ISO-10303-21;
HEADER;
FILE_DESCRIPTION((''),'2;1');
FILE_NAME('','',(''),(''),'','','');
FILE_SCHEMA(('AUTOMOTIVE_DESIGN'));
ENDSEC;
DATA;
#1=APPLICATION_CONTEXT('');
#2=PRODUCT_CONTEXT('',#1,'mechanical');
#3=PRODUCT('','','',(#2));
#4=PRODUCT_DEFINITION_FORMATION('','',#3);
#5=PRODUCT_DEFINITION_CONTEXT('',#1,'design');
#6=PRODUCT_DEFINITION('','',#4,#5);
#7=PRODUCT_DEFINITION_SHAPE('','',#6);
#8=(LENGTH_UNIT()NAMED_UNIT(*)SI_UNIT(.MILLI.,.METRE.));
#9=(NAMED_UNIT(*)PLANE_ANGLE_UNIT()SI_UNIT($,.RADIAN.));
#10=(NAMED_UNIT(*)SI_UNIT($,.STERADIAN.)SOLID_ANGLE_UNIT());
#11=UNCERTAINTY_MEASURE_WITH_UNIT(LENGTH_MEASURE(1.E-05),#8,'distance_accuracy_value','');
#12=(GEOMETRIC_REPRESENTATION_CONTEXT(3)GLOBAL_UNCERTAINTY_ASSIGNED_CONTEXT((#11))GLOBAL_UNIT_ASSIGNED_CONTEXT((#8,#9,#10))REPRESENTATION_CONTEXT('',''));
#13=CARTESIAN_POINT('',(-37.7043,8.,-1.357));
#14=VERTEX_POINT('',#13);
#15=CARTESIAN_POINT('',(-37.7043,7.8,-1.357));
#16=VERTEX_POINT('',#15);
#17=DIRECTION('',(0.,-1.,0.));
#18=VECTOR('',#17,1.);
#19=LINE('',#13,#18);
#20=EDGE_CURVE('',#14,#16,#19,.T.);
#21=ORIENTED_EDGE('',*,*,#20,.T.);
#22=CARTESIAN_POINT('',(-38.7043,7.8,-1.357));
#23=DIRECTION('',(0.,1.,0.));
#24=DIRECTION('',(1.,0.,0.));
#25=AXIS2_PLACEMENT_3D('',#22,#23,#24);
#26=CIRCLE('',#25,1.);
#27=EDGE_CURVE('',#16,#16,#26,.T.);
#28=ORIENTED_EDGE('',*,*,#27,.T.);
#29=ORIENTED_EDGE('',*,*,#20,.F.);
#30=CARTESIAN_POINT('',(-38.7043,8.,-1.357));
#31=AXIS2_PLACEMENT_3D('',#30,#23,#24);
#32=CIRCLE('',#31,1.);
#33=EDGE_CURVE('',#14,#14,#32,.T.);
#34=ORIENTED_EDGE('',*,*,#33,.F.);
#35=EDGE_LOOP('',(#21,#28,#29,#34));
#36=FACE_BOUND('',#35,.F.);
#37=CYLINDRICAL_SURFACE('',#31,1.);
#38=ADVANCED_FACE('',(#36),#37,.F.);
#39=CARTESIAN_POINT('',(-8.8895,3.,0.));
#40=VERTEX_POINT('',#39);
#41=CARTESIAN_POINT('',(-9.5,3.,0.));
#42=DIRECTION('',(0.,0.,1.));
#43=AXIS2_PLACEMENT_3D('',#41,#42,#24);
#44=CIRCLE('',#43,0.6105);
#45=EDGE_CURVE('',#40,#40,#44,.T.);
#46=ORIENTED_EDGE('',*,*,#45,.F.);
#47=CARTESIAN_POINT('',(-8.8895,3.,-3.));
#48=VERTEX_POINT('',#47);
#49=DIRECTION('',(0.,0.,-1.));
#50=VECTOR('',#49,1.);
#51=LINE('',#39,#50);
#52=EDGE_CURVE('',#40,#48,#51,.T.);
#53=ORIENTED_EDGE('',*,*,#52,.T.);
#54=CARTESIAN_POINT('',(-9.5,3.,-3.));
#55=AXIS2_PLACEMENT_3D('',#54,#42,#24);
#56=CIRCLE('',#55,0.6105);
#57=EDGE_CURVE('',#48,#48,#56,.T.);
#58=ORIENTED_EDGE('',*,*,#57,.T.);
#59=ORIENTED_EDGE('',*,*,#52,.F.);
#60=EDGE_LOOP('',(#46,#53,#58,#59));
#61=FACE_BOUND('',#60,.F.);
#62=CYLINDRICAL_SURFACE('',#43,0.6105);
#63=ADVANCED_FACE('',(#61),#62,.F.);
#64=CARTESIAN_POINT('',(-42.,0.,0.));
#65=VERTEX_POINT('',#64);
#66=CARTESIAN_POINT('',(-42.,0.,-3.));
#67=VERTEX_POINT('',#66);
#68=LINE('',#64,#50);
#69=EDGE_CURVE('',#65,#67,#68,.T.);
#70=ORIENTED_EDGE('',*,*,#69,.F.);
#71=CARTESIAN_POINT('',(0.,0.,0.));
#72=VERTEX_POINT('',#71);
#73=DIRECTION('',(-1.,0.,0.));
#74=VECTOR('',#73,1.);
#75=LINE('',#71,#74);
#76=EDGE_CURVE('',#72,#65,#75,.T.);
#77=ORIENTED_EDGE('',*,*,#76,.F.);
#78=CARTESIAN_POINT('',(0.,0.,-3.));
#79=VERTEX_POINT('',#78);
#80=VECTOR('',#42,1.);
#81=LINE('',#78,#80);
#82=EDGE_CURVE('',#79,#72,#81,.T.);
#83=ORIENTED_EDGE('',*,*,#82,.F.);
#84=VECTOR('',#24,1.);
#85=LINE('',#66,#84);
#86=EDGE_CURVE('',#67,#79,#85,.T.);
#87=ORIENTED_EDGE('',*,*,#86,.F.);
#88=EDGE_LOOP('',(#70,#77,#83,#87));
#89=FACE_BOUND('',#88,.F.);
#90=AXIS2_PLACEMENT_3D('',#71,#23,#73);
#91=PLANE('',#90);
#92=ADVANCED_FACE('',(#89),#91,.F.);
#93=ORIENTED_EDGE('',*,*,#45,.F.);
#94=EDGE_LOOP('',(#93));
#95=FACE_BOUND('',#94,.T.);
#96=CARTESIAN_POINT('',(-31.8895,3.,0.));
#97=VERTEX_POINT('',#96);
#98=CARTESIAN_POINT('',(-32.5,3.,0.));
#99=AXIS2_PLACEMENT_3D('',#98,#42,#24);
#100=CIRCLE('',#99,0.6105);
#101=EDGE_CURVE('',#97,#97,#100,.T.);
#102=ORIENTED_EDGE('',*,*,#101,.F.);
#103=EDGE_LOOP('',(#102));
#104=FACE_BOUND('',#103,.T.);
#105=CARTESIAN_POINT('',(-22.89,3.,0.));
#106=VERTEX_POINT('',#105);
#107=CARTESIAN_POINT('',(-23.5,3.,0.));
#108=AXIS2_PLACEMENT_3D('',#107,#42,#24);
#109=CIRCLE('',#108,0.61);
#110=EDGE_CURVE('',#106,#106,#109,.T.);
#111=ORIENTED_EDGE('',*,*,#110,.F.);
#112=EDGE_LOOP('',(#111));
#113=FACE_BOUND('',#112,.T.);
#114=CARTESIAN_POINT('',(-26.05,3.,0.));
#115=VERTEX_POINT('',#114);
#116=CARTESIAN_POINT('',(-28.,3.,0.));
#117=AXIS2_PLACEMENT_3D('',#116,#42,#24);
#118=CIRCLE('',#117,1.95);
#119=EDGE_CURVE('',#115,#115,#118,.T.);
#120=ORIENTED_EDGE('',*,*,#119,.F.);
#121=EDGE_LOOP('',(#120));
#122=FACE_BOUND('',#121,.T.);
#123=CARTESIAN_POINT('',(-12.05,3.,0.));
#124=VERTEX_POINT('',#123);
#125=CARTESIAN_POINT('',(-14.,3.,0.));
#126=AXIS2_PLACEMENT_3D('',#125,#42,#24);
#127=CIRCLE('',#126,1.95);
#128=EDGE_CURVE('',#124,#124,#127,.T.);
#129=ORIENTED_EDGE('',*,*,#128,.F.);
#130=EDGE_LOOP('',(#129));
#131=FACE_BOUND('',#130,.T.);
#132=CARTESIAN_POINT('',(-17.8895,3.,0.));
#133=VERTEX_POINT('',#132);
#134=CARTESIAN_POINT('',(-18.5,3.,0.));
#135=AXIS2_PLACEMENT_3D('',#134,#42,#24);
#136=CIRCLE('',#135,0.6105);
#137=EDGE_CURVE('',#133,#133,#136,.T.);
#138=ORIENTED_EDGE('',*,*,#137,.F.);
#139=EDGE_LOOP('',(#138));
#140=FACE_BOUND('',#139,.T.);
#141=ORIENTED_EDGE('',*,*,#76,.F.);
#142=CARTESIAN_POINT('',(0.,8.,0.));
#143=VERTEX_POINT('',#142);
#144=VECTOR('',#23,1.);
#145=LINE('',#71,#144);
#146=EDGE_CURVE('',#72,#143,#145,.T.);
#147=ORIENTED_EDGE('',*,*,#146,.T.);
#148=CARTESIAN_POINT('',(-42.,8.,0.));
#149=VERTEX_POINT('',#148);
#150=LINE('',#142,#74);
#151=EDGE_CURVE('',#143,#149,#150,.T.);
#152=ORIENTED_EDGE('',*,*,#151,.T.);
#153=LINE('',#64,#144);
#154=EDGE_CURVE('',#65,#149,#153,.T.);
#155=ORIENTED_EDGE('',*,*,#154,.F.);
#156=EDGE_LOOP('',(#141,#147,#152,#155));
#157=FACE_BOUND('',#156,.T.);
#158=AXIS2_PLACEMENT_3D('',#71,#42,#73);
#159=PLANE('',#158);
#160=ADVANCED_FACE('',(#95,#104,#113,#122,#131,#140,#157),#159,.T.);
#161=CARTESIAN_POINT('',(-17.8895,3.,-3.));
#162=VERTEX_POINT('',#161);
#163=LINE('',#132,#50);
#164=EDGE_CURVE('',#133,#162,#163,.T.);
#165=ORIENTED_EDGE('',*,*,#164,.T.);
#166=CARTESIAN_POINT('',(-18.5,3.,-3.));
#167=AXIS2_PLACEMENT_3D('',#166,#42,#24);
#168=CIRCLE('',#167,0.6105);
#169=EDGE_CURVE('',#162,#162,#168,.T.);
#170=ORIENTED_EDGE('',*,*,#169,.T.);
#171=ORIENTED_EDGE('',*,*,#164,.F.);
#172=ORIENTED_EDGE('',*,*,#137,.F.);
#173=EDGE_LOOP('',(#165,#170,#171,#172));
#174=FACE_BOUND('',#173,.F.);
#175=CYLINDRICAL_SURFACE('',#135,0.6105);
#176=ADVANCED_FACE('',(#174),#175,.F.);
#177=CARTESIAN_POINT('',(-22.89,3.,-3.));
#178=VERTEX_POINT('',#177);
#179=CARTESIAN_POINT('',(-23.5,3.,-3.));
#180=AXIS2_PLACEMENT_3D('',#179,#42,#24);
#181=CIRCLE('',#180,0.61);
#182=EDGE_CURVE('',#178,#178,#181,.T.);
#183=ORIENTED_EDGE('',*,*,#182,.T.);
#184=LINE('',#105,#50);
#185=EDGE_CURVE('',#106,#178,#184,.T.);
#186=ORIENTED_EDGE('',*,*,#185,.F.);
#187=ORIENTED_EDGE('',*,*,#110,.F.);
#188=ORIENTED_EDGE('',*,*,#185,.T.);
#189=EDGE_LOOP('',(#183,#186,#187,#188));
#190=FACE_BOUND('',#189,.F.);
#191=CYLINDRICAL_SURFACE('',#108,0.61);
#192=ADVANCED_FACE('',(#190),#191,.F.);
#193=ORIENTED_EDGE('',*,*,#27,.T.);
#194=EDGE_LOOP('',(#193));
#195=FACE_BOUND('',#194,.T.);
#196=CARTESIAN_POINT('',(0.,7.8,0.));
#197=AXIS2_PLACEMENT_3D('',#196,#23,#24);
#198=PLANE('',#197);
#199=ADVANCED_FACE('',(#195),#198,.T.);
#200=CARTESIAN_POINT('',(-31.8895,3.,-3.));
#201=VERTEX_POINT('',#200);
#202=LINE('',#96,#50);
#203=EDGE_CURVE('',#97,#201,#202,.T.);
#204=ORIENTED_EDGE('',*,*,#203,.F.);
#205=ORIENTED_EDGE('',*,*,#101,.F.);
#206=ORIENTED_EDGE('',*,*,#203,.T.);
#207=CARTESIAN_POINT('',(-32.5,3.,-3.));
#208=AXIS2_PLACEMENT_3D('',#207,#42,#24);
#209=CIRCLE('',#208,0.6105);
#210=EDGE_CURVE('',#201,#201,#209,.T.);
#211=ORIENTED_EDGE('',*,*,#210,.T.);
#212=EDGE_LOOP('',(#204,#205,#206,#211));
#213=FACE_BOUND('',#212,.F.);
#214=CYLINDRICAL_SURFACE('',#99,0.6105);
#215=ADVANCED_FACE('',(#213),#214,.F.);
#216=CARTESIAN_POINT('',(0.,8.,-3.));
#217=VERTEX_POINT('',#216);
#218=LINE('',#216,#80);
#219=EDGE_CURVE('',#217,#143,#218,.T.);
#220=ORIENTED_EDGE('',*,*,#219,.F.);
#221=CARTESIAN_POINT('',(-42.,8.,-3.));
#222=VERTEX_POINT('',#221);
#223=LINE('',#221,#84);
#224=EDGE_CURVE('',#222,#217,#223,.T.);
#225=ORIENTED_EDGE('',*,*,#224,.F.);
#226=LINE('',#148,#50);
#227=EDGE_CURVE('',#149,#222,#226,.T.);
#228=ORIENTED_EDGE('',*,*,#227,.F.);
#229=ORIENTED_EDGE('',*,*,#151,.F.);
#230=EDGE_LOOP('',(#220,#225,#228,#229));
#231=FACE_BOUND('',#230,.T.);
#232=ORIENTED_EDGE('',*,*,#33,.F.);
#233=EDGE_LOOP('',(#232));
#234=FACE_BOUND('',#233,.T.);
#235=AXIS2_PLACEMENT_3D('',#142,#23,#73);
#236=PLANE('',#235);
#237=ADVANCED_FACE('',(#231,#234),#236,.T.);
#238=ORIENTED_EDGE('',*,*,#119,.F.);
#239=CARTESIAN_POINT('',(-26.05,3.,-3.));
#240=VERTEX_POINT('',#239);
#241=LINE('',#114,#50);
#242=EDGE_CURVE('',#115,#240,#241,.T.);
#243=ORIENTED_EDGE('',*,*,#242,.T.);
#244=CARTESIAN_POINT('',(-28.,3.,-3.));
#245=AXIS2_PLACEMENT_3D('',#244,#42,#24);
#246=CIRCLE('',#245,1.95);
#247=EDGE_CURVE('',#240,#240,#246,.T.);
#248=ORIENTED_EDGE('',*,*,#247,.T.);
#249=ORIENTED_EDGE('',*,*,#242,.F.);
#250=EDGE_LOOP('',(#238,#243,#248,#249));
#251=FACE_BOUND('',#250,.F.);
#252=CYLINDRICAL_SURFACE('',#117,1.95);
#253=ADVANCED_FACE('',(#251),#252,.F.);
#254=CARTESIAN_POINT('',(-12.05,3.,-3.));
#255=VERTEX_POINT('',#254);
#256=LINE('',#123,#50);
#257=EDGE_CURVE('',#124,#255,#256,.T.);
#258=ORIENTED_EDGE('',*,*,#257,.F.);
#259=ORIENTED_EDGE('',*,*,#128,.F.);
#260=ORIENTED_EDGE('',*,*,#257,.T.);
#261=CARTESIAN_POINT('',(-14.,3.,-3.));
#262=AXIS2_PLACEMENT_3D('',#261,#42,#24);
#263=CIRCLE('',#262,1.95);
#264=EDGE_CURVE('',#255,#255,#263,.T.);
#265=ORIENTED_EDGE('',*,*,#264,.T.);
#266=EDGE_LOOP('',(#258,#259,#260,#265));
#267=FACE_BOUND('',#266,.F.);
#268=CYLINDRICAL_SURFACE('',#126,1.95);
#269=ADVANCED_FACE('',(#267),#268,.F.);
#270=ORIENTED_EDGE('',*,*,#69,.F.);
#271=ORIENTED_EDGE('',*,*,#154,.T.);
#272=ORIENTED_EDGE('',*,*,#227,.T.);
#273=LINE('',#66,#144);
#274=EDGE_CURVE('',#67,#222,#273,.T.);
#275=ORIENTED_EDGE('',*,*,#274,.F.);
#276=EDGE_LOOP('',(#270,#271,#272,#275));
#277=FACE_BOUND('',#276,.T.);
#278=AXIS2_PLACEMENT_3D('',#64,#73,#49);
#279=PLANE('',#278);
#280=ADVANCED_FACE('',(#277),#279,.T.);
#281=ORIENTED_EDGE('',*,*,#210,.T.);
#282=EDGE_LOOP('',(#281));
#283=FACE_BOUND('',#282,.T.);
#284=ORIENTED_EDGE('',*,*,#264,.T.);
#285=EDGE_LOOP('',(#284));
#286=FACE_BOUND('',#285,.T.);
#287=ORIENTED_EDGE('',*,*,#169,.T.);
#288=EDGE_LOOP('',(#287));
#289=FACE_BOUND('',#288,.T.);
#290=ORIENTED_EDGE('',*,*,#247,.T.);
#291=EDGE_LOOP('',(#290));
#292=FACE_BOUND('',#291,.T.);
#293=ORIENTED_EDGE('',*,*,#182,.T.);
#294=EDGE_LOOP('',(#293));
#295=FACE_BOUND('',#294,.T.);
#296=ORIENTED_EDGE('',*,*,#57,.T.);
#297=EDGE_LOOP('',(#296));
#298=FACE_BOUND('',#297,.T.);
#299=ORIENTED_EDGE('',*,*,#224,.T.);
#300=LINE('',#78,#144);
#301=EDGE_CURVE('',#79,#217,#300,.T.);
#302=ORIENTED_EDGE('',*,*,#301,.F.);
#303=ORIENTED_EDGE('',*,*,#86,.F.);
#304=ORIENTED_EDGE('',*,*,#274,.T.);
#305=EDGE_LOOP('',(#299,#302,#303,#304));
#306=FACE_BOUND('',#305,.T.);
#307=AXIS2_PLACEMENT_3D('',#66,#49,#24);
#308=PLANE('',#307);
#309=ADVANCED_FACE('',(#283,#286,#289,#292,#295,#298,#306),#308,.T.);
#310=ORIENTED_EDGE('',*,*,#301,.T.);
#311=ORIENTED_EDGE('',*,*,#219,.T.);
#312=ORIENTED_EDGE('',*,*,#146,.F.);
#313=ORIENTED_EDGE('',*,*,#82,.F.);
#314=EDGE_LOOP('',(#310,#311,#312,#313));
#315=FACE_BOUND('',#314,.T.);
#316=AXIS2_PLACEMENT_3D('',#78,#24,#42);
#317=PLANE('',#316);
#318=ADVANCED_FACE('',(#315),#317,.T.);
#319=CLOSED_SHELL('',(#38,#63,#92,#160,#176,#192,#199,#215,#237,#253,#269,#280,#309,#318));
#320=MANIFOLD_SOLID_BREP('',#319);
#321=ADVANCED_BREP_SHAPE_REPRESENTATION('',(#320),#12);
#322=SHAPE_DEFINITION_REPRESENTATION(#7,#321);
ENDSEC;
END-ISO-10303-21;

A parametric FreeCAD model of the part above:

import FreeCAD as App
import Part
import Sketcher

V = App.Vector
Q = App.Units.Quantity


def add_polygon(sketch, points):
    """Adds a closed chain of lines whose ends are joined by coincident constraints."""
    first, n = sketch.GeometryCount, len(points)
    for a, b in zip(points, points[1:] + points[:1]):
        sketch.addGeometry(Part.LineSegment(App.Vector(*a, 0), App.Vector(*b, 0)), False)
    for i in range(n):
        sketch.addConstraint(Sketcher.Constraint("Coincident", first + i, 2, first + (i + 1) % n, 1))

doc = App.newDocument("Part")
body = doc.addObject("PartDesign::Body", "Body")

# Sketch on XZ plane
sketch1 = doc.addObject("Sketcher::SketchObject", "Sketch")
body.addObject(sketch1)
sketch1.AttachmentSupport = (doc.XZ_Plane, [""])
sketch1.MapMode = "FlatFace"
add_polygon(sketch1, [(-42, 0), (0, 0), (0, -3), (-42, -3)])  # lines 0-3
sketch1.addConstraint(Sketcher.Constraint("Horizontal", 0))
sketch1.addConstraint(Sketcher.Constraint("Vertical", 1))
sketch1.addConstraint(Sketcher.Constraint("Horizontal", 2))
sketch1.addConstraint(Sketcher.Constraint("Vertical", 3))
sketch1.addConstraint(Sketcher.Constraint("Coincident", 0, 2, -1, 1))
sketch1.addConstraint(Sketcher.Constraint("DistanceX", 0, 1, 0, 2, Q("42 mm")))
sketch1.addConstraint(Sketcher.Constraint("DistanceY", 1, 2, 1, 1, Q("3 mm")))
pad1 = doc.addObject("PartDesign::Pad", "Pad")
body.addObject(pad1)
pad1.Profile = sketch1
pad1.Length = 8
pad1.Reversed = True

# Sketch on XZ plane
sketch2 = doc.addObject("Sketcher::SketchObject", "Sketch001")
body.addObject(sketch2)
sketch2.AttachmentSupport = (doc.XZ_Plane, [""])
sketch2.MapMode = "FlatFace"
sketch2.AttachmentOffset = App.Placement(V(0, 0, -8), App.Rotation())
sketch2.addGeometry(Part.Circle(V(-38.7, -1.4, 0), V(0, 0, 1), 1), False)
sketch2.addConstraint(Sketcher.Constraint("Diameter", 0, Q("2 mm")))
sketch2.addConstraint(Sketcher.Constraint("DistanceY", 0, 3, -1, 1, Q("1.357 mm")))
sketch2.addConstraint(Sketcher.Constraint("DistanceX", 0, 3, -1, 1, Q("38.7043 mm")))
pocket1 = doc.addObject("PartDesign::Pocket", "Pocket")
body.addObject(pocket1)
pocket1.Profile = sketch2
pocket1.Length = 0.2
pocket1.Reversed = True

# Sketch on XY plane
sketch3 = doc.addObject("Sketcher::SketchObject", "Sketch002")
body.addObject(sketch3)
sketch3.AttachmentSupport = (doc.XY_Plane, [""])
sketch3.MapMode = "FlatFace"
sketch3.addGeometry(Part.Circle(V(-32.5, 3, 0), V(0, 0, 1), 0.6), False)
sketch3.addGeometry(Part.Circle(V(-23.5, 3, 0), V(0, 0, 1), 0.6), False)
sketch3.addGeometry(Part.Circle(V(-18.5, 3, 0), V(0, 0, 1), 0.6), False)
sketch3.addGeometry(Part.Circle(V(-9.5, 3, 0), V(0, 0, 1), 0.6), False)
sketch3.addGeometry(Part.Circle(V(-28, 3, 0), V(0, 0, 1), 1.9), False)
sketch3.addGeometry(Part.Circle(V(-14, 3, 0), V(0, 0, 1), 1.9), False)
sketch3.addConstraint(Sketcher.Constraint("Equal", 0, 2))
sketch3.addConstraint(Sketcher.Constraint("Equal", 2, 3))
sketch3.addConstraint(Sketcher.Constraint("Equal", 4, 5))
sketch3.addConstraint(Sketcher.Constraint("Horizontal", 0, 3, 1, 3))
sketch3.addConstraint(Sketcher.Constraint("Horizontal", 1, 3, 2, 3))
sketch3.addConstraint(Sketcher.Constraint("Horizontal", 2, 3, 3, 3))
sketch3.addConstraint(Sketcher.Constraint("Horizontal", 3, 3, 4, 3))
sketch3.addConstraint(Sketcher.Constraint("Horizontal", 4, 3, 5, 3))
sketch3.addConstraint(Sketcher.Constraint("Diameter", 4, Q("3.9 mm")))
sketch3.addConstraint(Sketcher.Constraint("Diameter", 1, Q("1.22 mm")))
sketch3.addConstraint(Sketcher.Constraint("Diameter", 0, Q("1.221 mm")))
sketch3.addConstraint(Sketcher.Constraint("DistanceY", -1, 1, 0, 3, Q("3 mm")))
sketch3.addConstraint(Sketcher.Constraint("DistanceX", 0, 3, 1, 3, Q("9 mm")))
sketch3.addConstraint(Sketcher.Constraint("DistanceX", 2, 3, 3, 3, Q("9 mm")))
sketch3.addConstraint(Sketcher.Constraint("DistanceX", 3, 3, -1, 1, Q("9.5 mm")))
sketch3.addConstraint(Sketcher.Constraint("DistanceX", 0, 3, 4, 3, Q("4.5 mm")))
sketch3.addConstraint(Sketcher.Constraint("DistanceX", 4, 3, 2, 3, Q("9.5 mm")))
sketch3.addConstraint(Sketcher.Constraint("DistanceX", 2, 3, 5, 3, Q("4.5 mm")))
pocket2 = doc.addObject("PartDesign::Pocket", "Pocket001")
body.addObject(pocket2)
pocket2.Profile = sketch3
pocket2.Length = 3

doc.recompute()
